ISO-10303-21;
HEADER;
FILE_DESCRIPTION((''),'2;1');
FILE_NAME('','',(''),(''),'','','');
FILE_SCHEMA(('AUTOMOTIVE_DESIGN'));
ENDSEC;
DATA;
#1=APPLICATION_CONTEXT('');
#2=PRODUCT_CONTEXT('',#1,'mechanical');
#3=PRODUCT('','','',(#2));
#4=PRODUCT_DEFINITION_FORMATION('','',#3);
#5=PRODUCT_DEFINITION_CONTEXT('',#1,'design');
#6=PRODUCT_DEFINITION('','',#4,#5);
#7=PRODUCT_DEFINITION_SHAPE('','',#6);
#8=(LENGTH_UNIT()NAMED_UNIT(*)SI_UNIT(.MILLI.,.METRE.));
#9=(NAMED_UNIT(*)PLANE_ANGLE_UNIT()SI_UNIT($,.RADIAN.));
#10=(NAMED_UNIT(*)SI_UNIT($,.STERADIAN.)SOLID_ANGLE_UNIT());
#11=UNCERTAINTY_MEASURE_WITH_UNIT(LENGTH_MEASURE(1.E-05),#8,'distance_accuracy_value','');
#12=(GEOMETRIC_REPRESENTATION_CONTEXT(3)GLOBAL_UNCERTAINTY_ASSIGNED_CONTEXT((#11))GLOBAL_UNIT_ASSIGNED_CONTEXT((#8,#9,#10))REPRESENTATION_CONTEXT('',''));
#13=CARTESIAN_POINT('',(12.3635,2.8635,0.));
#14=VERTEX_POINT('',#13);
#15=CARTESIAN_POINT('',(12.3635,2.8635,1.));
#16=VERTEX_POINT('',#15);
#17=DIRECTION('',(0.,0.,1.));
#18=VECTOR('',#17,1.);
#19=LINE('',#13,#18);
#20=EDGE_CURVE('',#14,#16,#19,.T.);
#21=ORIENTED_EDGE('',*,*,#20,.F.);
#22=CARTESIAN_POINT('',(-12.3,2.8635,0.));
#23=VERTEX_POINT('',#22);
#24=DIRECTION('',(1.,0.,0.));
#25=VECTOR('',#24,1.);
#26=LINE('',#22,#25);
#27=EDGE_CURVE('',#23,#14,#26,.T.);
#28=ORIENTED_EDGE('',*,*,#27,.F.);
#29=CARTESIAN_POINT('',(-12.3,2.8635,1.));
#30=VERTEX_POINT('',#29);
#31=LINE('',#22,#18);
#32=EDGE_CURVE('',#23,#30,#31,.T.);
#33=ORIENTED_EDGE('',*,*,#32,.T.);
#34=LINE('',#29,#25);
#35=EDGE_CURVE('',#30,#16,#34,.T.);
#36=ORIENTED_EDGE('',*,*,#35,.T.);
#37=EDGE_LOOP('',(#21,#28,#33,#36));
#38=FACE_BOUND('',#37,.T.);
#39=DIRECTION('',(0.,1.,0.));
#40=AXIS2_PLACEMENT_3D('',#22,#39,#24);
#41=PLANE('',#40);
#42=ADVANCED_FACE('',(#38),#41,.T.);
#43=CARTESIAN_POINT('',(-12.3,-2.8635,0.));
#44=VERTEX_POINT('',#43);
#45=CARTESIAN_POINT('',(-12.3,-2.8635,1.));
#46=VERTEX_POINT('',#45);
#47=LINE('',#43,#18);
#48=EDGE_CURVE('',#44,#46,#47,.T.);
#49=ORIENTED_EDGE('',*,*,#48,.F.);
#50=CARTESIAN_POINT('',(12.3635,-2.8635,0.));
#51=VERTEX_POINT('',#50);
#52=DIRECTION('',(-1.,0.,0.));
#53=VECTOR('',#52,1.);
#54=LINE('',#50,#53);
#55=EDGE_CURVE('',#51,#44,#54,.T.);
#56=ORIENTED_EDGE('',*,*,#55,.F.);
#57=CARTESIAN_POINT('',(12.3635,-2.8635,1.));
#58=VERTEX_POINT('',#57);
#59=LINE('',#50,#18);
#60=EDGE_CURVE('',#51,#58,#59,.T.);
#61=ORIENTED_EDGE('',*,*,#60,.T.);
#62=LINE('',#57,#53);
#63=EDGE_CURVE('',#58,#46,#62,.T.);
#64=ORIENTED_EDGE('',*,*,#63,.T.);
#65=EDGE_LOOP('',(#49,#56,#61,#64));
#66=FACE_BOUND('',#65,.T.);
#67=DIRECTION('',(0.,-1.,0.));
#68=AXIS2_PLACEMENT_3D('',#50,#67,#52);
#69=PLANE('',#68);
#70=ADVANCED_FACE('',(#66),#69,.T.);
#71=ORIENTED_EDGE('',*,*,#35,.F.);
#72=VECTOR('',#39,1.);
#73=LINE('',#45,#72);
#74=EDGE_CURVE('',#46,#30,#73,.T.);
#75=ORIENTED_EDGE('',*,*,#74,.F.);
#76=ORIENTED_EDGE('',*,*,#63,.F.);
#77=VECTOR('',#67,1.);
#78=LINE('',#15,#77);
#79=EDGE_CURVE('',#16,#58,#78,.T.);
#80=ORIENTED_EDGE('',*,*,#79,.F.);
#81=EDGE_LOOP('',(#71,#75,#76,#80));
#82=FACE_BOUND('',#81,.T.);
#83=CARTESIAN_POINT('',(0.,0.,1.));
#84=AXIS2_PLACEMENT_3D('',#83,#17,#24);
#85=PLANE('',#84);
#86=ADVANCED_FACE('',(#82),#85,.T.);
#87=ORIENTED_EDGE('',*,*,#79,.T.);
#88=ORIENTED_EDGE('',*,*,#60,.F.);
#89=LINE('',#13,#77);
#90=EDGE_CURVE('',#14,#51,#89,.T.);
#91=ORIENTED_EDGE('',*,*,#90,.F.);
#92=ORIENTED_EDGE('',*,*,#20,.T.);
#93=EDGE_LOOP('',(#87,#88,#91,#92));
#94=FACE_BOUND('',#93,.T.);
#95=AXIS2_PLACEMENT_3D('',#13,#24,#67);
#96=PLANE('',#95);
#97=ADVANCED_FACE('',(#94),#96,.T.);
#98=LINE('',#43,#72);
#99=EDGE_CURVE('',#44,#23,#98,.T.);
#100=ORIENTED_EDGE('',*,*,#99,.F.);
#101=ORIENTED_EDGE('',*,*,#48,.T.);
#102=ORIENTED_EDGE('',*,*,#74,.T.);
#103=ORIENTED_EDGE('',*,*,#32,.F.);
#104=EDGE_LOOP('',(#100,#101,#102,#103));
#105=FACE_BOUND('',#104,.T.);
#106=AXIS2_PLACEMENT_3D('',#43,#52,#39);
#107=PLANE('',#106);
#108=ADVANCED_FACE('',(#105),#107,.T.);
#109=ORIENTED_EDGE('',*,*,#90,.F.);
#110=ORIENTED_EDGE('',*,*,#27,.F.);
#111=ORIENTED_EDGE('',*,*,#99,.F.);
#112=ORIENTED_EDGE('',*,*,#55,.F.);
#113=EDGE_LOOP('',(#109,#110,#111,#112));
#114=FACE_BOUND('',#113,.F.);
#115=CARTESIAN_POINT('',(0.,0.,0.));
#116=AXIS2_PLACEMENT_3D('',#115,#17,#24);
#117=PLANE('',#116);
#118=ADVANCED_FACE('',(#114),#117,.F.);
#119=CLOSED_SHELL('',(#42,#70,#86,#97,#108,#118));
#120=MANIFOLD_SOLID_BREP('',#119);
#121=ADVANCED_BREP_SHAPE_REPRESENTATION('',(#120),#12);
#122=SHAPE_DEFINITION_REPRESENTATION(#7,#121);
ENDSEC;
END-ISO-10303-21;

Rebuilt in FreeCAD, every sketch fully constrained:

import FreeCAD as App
import Part
import Sketcher


def add_polygon(sketch, points):
    """Adds a closed chain of lines whose ends are joined by coincident constraints."""
    first, n = sketch.GeometryCount, len(points)
    for a, b in zip(points, points[1:] + points[:1]):
        sketch.addGeometry(Part.LineSegment(App.Vector(*a, 0), App.Vector(*b, 0)), False)
    for i in range(n):
        sketch.addConstraint(Sketcher.Constraint("Coincident", first + i, 2, first + (i + 1) % n, 1))

doc = App.newDocument("Part")
body = doc.addObject("PartDesign::Body", "Body")

# Sketch on XY plane
sketch1 = doc.addObject("Sketcher::SketchObject", "Sketch")
body.addObject(sketch1)
sketch1.AttachmentSupport = (doc.XY_Plane, [""])
sketch1.MapMode = "FlatFace"
add_polygon(sketch1, [(12, 3), (-12, 3), (-12, -3), (12, -3)])  # lines 0-3
sketch1.addConstraint(Sketcher.Constraint("Horizontal", 0))
sketch1.addConstraint(Sketcher.Constraint("Vertical", 1))
sketch1.addConstraint(Sketcher.Constraint("Horizontal", 2))
sketch1.addConstraint(Sketcher.Constraint("Vertical", 3))
sketch1.addConstraint(Sketcher.Constraint("DistanceX", 0, 2, -1, 1, 12.3))
sketch1.addConstraint(Sketcher.Constraint("DistanceY", 1, 2, 1, 1, 5.727))
sketch1.addConstraint(Sketcher.Constraint("DistanceX", 0, 2, 0, 1, 24.6635))
sketch1.addConstraint(Sketcher.Constraint("DistanceY", -1, 1, 0, 2, 2.8635))
pad1 = doc.addObject("PartDesign::Pad", "Pad")
body.addObject(pad1)
pad1.Profile = sketch1
pad1.Length = 1

doc.recompute()
